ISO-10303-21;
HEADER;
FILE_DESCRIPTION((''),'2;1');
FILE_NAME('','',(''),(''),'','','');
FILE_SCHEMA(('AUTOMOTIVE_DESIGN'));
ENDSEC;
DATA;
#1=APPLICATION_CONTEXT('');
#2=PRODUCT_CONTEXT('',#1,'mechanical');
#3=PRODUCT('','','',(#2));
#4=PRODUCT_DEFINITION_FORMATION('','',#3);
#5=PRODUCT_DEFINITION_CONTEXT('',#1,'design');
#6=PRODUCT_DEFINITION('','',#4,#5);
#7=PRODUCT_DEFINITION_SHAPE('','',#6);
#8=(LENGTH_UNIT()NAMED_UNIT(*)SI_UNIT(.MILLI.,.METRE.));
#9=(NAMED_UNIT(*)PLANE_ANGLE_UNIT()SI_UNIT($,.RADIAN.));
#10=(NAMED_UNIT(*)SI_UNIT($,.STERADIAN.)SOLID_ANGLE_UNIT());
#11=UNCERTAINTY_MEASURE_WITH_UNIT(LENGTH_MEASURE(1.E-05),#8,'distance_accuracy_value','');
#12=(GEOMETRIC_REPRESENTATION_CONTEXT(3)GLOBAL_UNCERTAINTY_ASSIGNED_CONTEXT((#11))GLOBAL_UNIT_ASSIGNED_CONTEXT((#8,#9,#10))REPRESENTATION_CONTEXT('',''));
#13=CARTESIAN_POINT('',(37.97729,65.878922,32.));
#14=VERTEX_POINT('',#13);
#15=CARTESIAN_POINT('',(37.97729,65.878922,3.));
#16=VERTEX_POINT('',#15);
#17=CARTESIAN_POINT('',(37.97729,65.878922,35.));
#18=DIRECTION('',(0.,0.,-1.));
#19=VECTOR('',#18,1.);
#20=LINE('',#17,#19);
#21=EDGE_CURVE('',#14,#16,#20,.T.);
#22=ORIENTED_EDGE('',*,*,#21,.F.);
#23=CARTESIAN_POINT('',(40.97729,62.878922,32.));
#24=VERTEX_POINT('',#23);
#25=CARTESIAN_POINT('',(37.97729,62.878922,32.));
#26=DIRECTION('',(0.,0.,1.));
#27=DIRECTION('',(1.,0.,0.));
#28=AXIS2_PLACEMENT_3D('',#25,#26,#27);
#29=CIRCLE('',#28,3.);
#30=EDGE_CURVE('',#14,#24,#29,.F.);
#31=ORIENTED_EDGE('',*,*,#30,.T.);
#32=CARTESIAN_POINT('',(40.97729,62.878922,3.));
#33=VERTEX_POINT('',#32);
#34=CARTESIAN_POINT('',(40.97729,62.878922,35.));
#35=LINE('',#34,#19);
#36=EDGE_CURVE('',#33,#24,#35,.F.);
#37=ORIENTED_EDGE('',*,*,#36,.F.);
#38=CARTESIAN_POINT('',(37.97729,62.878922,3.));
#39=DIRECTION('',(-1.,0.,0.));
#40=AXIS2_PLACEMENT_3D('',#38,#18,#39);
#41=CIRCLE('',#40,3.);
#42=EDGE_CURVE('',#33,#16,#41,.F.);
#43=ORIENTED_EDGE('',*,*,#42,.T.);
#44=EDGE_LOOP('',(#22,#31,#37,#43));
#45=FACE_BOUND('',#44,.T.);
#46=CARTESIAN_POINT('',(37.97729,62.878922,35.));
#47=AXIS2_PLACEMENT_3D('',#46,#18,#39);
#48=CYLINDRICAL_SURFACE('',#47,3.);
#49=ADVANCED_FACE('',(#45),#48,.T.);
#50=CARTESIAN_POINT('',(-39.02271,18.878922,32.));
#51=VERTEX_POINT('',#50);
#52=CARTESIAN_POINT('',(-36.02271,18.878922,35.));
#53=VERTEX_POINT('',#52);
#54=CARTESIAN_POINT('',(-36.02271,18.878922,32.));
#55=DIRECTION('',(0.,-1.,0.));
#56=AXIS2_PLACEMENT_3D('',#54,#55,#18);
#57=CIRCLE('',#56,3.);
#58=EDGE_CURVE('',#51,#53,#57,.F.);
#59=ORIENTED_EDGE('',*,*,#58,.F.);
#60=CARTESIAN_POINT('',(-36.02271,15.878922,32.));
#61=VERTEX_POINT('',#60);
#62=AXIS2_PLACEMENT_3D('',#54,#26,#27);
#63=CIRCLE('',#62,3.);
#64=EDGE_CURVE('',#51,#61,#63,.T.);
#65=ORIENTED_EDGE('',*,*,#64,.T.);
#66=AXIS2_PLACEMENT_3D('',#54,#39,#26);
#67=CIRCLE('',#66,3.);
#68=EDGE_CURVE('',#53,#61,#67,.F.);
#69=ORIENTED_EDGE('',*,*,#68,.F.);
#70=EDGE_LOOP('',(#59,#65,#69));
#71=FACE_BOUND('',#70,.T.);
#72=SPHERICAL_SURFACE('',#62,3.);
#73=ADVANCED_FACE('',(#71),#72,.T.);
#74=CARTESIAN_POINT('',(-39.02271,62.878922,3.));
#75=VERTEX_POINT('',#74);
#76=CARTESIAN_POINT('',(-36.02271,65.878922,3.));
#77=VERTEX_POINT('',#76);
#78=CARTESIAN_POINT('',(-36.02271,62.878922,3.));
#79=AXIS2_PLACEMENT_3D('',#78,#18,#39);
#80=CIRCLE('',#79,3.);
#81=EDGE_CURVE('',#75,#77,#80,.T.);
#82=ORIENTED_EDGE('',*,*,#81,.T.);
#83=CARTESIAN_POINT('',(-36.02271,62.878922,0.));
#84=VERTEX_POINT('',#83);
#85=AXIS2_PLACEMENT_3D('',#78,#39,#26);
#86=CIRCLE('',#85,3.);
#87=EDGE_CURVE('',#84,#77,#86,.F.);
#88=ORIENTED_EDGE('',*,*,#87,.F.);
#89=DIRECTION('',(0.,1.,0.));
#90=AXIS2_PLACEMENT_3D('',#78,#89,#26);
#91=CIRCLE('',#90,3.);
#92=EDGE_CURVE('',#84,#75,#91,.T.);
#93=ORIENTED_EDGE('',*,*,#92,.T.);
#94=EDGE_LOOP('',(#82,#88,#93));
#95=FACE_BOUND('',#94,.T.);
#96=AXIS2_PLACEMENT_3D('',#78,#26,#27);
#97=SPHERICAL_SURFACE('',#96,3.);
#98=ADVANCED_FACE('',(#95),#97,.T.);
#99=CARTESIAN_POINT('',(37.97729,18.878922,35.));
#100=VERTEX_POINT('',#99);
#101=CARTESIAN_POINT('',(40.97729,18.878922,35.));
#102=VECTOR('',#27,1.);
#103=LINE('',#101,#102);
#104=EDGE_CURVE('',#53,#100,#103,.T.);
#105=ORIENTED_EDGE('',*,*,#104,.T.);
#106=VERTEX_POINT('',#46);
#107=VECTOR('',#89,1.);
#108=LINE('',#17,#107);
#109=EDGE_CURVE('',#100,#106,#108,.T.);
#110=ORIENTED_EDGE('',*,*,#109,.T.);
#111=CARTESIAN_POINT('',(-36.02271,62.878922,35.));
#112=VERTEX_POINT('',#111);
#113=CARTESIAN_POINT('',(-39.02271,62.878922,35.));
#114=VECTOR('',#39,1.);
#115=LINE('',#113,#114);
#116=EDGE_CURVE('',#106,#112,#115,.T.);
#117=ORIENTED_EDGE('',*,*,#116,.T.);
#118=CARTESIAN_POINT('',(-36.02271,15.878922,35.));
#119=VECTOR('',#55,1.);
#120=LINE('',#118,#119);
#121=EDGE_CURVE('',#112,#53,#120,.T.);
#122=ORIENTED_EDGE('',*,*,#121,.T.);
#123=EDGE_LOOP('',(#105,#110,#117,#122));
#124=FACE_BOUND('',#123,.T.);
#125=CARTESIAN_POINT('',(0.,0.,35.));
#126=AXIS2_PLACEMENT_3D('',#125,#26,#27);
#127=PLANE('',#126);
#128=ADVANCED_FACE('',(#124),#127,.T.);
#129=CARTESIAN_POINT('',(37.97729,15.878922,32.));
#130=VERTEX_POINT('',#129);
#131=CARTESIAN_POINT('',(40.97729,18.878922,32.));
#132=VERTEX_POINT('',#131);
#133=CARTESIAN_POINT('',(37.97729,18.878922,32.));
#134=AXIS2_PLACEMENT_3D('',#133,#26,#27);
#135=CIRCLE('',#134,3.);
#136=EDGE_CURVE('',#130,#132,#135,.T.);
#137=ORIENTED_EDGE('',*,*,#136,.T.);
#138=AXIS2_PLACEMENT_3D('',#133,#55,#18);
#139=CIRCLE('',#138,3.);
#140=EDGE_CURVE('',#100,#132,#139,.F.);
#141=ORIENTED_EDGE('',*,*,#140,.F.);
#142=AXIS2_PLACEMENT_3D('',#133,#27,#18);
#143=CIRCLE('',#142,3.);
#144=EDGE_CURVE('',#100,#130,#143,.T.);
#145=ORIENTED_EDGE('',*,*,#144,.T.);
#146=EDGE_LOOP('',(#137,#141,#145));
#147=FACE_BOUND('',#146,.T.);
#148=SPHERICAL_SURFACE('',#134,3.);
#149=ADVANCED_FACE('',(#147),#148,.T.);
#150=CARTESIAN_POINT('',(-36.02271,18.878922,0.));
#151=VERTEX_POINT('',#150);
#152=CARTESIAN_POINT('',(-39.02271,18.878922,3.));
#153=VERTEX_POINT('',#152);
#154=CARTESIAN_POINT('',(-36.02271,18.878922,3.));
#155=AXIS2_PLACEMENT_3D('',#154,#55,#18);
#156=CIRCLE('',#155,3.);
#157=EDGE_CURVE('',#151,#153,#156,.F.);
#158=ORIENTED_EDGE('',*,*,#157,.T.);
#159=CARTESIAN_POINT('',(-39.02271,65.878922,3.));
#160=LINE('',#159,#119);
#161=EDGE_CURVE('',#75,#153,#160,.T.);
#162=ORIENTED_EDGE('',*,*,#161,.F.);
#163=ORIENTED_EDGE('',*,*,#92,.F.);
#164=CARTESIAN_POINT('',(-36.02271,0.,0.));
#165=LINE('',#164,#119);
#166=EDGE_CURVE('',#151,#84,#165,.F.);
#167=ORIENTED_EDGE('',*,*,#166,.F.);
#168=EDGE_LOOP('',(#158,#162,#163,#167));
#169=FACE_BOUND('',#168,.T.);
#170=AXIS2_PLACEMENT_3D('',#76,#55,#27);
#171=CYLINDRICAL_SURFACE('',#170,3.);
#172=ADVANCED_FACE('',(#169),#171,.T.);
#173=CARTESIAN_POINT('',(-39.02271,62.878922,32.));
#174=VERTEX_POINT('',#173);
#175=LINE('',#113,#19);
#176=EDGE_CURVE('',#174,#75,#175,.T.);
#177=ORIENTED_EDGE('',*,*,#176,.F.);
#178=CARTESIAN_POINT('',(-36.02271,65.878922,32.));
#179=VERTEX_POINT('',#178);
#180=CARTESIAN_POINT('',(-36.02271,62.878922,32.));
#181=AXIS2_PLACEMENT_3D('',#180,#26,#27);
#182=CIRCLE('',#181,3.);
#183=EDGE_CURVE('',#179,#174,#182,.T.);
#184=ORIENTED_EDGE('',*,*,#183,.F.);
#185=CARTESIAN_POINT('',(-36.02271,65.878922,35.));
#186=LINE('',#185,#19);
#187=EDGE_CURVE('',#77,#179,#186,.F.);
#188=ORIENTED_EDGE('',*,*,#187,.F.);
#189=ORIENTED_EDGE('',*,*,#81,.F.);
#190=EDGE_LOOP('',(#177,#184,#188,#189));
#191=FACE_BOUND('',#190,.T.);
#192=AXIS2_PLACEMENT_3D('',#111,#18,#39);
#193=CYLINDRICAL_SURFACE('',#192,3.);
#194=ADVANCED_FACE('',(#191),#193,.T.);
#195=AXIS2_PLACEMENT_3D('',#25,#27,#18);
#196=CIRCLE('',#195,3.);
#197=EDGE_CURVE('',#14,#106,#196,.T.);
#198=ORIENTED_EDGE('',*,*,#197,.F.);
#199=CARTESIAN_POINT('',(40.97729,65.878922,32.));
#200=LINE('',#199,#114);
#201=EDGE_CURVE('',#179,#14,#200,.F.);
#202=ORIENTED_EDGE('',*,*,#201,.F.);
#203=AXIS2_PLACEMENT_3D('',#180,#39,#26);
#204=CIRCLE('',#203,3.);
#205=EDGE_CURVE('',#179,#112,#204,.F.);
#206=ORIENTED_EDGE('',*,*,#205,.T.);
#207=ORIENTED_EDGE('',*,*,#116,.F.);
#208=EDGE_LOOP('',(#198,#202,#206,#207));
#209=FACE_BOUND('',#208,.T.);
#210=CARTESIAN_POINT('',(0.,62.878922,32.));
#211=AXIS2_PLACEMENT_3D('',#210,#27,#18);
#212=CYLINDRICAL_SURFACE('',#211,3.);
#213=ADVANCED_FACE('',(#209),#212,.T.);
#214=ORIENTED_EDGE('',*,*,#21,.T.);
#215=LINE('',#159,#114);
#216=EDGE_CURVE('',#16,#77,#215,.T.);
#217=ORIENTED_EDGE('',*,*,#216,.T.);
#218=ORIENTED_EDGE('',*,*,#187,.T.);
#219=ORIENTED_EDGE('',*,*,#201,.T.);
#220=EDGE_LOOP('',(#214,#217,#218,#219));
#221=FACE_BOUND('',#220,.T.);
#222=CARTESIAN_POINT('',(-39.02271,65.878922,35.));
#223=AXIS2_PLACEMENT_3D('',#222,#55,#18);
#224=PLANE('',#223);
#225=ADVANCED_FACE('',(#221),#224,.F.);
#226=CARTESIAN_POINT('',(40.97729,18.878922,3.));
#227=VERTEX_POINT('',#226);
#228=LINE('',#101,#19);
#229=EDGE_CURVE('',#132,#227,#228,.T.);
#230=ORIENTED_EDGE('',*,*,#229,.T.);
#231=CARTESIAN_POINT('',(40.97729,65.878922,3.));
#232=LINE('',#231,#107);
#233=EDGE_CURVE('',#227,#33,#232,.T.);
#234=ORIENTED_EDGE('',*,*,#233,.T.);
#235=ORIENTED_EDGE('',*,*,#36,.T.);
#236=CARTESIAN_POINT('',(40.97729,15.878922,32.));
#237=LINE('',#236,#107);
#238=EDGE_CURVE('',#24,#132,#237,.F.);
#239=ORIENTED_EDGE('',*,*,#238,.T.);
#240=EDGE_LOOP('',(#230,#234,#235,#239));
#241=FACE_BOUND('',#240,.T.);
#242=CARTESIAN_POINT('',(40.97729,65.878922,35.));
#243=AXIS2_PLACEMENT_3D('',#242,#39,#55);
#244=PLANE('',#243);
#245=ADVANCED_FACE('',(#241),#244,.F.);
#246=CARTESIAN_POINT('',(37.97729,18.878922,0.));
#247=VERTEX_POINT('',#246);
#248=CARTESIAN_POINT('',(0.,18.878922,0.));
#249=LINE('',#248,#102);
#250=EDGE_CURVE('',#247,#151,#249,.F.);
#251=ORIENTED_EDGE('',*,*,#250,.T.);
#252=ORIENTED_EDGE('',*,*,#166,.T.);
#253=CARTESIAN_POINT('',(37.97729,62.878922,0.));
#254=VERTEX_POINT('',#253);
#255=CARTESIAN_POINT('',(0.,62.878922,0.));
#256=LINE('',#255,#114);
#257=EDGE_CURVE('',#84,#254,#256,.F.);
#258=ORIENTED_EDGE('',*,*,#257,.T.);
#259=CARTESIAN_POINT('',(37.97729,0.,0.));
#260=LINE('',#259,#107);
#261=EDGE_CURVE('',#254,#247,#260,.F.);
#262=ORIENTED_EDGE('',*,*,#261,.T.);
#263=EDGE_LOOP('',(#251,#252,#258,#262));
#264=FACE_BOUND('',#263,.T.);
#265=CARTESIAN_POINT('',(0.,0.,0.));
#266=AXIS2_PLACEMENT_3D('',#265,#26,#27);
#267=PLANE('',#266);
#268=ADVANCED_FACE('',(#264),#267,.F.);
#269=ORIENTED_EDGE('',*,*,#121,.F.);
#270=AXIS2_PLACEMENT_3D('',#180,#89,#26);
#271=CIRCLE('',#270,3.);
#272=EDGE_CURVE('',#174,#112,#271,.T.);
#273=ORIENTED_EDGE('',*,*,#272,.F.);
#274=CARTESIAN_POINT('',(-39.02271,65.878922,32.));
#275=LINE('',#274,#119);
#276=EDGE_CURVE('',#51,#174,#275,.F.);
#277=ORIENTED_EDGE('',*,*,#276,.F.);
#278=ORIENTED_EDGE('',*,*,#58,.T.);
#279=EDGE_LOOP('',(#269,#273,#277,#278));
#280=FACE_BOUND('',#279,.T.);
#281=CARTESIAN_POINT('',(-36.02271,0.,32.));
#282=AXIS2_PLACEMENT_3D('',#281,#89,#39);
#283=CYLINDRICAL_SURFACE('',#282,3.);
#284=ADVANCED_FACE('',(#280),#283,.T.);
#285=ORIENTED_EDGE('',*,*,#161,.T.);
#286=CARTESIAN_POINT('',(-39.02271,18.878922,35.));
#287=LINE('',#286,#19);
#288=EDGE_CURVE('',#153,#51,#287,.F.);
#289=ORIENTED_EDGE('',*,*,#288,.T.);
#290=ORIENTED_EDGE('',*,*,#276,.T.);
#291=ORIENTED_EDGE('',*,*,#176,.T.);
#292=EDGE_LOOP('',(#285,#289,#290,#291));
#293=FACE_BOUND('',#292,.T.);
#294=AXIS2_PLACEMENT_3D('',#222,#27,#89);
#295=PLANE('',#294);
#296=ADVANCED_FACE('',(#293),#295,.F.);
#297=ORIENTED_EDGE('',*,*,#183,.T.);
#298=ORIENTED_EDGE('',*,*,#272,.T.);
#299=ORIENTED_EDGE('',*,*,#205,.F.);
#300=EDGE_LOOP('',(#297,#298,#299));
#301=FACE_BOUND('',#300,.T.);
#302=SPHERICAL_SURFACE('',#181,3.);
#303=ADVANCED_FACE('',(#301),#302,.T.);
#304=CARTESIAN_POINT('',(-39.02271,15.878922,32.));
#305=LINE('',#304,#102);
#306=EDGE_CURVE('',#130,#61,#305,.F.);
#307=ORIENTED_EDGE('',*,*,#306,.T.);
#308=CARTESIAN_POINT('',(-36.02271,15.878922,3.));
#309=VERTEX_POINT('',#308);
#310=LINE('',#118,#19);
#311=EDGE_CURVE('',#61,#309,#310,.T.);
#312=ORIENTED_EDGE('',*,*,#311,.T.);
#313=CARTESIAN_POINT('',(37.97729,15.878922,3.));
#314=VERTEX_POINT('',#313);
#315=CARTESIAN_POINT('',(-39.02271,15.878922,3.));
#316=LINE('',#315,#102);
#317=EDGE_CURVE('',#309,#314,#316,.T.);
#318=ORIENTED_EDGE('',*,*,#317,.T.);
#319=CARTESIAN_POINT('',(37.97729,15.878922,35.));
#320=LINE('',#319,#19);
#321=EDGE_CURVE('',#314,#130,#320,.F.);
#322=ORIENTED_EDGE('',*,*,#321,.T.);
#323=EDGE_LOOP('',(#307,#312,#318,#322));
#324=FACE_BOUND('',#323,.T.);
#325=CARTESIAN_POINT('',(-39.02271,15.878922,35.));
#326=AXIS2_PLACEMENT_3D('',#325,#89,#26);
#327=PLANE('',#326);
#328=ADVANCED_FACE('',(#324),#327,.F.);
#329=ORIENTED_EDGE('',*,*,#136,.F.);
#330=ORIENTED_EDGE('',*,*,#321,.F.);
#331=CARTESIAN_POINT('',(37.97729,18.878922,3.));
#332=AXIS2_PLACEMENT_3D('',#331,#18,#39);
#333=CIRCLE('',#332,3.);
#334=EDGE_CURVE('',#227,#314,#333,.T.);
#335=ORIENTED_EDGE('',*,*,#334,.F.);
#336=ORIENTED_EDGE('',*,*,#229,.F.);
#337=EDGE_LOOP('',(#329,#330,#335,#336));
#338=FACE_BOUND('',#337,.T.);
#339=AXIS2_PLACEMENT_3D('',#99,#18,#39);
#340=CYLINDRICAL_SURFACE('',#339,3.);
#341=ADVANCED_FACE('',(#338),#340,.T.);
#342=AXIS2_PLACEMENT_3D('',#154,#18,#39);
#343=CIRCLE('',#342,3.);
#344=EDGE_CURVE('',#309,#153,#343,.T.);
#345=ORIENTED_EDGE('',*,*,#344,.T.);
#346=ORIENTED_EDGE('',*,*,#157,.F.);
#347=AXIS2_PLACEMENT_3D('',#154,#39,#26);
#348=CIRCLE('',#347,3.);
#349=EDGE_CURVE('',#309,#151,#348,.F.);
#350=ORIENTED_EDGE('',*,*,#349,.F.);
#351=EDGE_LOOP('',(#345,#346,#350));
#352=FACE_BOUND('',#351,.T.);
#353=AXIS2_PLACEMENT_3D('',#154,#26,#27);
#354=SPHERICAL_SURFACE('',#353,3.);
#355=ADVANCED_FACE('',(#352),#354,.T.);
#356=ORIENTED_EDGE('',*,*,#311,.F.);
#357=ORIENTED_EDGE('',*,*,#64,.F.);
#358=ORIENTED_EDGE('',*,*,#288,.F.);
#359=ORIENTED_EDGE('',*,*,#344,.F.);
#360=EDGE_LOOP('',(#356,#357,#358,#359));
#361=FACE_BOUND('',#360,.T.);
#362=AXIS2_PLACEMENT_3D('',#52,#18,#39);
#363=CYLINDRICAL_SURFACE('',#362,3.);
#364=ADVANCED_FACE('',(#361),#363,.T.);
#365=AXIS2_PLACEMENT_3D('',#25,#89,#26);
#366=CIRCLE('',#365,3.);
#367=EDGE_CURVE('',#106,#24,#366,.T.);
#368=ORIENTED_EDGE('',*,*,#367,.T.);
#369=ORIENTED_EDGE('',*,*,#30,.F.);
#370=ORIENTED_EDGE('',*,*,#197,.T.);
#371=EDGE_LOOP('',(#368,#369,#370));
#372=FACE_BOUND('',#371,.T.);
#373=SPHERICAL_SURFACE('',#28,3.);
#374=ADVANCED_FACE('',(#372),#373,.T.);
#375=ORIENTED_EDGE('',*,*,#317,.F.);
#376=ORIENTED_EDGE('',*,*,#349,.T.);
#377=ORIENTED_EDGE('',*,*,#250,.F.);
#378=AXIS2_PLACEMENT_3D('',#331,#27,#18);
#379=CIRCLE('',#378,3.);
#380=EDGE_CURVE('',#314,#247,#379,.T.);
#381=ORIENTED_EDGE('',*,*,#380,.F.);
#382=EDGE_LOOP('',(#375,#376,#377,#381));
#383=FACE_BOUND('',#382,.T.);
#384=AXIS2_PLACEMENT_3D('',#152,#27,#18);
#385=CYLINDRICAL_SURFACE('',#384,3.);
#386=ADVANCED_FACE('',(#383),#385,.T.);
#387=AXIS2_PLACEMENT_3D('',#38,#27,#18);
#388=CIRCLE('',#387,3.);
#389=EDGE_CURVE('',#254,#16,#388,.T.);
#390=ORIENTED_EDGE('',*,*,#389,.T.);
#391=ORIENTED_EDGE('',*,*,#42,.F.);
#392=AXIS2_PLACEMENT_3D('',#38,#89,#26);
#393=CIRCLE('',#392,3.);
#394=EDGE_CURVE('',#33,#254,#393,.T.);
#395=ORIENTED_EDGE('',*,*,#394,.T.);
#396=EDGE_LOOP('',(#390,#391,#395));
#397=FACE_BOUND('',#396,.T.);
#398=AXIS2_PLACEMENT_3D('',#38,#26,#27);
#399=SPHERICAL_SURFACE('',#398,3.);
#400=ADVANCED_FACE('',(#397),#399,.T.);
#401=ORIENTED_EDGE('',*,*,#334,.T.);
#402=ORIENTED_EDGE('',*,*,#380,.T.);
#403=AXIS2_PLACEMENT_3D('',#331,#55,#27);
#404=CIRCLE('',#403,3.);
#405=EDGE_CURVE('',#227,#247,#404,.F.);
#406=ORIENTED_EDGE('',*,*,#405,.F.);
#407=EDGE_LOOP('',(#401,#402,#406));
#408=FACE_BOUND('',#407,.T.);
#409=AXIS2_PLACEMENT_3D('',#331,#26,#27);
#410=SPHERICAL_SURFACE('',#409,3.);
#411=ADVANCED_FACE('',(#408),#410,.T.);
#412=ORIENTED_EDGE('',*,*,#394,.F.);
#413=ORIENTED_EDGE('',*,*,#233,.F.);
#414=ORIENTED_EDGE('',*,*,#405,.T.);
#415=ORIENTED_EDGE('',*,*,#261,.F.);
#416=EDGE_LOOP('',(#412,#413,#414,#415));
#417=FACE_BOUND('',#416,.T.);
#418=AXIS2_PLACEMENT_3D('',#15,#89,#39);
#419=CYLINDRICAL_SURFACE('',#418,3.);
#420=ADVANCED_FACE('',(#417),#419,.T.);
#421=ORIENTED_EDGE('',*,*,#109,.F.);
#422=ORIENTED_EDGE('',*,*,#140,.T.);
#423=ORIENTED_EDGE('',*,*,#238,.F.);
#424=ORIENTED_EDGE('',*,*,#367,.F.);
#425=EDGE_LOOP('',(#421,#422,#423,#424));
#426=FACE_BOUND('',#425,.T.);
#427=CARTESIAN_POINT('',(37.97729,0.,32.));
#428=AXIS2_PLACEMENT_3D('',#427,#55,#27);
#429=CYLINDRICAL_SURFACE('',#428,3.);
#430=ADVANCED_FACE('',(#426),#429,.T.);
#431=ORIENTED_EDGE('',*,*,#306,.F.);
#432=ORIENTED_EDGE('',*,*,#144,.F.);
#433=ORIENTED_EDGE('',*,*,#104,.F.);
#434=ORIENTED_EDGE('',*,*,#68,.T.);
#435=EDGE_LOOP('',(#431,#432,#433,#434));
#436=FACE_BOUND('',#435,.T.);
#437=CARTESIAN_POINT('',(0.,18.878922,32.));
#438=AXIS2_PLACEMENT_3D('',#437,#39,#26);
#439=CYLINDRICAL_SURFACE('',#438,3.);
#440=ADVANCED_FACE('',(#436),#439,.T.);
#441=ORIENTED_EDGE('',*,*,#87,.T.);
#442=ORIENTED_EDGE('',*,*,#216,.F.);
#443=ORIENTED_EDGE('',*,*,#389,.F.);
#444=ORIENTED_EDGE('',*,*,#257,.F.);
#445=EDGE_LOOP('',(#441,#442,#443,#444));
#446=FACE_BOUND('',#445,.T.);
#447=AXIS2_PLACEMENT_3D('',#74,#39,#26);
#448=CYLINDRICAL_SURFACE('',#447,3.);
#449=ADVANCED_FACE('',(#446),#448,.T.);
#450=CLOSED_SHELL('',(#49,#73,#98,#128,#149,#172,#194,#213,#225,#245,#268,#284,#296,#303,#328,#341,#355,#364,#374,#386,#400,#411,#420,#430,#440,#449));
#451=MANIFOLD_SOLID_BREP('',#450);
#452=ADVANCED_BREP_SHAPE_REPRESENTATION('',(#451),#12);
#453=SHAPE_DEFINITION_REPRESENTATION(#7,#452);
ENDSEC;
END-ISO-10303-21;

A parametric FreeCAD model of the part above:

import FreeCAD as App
import Part
import Sketcher

V = App.Vector
Q = App.Units.Quantity


def add_polygon(sketch, points):
    """Adds a closed chain of lines whose ends are joined by coincident constraints."""
    first, n = sketch.GeometryCount, len(points)
    for a, b in zip(points, points[1:] + points[:1]):
        sketch.addGeometry(Part.LineSegment(App.Vector(*a, 0), App.Vector(*b, 0)), False)
    for i in range(n):
        sketch.addConstraint(Sketcher.Constraint("Coincident", first + i, 2, first + (i + 1) % n, 1))

doc = App.newDocument("Part")
body = doc.addObject("PartDesign::Body", "Body")

# Sketch on XY plane
sketch1 = body.newObject("Sketcher::SketchObject", "Sketch")
sketch1.AttachmentSupport = (doc.getObject("XY_Plane"), [""])
sketch1.MapMode = "FlatFace"
add_polygon(sketch1, [(-39.02271, 65.878922), (-39.02271, 15.878922), (40.97729, 15.878922), (40.97729, 65.878922)])  # lines 0-3
sketch1.addConstraint(Sketcher.Constraint("Vertical", 0))
sketch1.addConstraint(Sketcher.Constraint("Horizontal", 1))
sketch1.addConstraint(Sketcher.Constraint("Vertical", 2))
sketch1.addConstraint(Sketcher.Constraint("Horizontal", 3))
sketch1.addConstraint(Sketcher.Constraint("DistanceX", 1, 1, 1, 2, Q("80 mm")))
sketch1.addConstraint(Sketcher.Constraint("DistanceY", 0, 2, 0, 1, Q("50 mm")))
sketch1.addConstraint(Sketcher.Constraint("DistanceX", 0, 2, -1, 1, Q("39.02271 mm")))
sketch1.addConstraint(Sketcher.Constraint("DistanceY", -1, 1, 0, 2, Q("15.878922 mm")))
pad1 = body.newObject("PartDesign::Pad", "Pad")
pad1.Profile = sketch1
pad1.Length = 35
doc.recompute()

fillet = body.newObject("PartDesign::Fillet", "Fillet")
fillet.Base = (pad1, ["Edge1"])
fillet.UseAllEdges = True
fillet.Radius = 3

doc.recompute()
